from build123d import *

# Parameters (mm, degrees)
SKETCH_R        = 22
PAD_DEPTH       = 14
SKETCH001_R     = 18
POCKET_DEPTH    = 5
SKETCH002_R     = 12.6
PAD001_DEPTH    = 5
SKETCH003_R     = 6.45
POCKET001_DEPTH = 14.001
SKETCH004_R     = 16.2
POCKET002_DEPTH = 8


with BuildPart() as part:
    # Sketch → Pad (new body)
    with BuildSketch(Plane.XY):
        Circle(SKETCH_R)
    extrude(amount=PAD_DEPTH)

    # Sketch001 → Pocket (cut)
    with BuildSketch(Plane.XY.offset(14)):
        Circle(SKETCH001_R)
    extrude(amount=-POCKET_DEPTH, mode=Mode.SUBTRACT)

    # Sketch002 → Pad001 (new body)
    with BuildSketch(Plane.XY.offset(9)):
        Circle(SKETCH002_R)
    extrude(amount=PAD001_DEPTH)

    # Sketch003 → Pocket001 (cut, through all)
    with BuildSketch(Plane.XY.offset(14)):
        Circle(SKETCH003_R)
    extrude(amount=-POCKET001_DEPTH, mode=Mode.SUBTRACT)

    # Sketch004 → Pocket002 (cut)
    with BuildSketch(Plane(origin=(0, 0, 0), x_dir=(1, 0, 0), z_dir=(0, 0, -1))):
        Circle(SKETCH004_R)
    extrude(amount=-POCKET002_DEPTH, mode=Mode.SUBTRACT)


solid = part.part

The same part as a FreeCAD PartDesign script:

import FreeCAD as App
import Part
import Sketcher

V = App.Vector

doc = App.newDocument("Part")
body = doc.addObject("PartDesign::Body", "Body")

sketch1 = body.newObject("Sketcher::SketchObject", "Sketch")
sketch1.AttachmentSupport = (doc.getObject("XY_Plane"), [""])
sketch1.MapMode = "FlatFace"
sketch1.addGeometry(Part.Circle(V(0, 0, 0), V(0, 0, 1), 22), False)
sketch1.addConstraint([
    Sketcher.Constraint("Coincident", 0, 3, -1, 1),
    Sketcher.Constraint("Diameter", 0, 44.0),
])
pad1 = body.newObject("PartDesign::Pad", "Pad")
pad1.Profile = sketch1
pad1.Length = 14

sketch2 = body.newObject("Sketcher::SketchObject", "Sketch001")
sketch2.AttachmentSupport = (doc.getObject("XY_Plane"), [""])
sketch2.MapMode = "FlatFace"
sketch2.AttachmentOffset = App.Placement(V(0, 0, 14), App.Rotation())
sketch2.addGeometry(Part.Circle(V(0, 0, 0), V(0, 0, 1), 18), False)
sketch2.addConstraint([
    Sketcher.Constraint("Coincident", 0, 3, -1, 1),
    Sketcher.Constraint("Diameter", 0, 36.0),
])
pocket1 = body.newObject("PartDesign::Pocket", "Pocket")
pocket1.Profile = sketch2
pocket1.Length = 5

sketch3 = body.newObject("Sketcher::SketchObject", "Sketch002")
sketch3.AttachmentSupport = (doc.getObject("XY_Plane"), [""])
sketch3.MapMode = "FlatFace"
sketch3.AttachmentOffset = App.Placement(V(0, 0, 9), App.Rotation())
sketch3.addGeometry(Part.Circle(V(0, 0, 0), V(0, 0, 1), 13), False)
sketch3.addConstraint([
    Sketcher.Constraint("Coincident", 0, 3, -1, 1),
    Sketcher.Constraint("Diameter", 0, 25.2),
])
pad2 = body.newObject("PartDesign::Pad", "Pad001")
pad2.Profile = sketch3
pad2.Length = 5

sketch4 = body.newObject("Sketcher::SketchObject", "Sketch003")
sketch4.AttachmentSupport = (doc.getObject("XY_Plane"), [""])
sketch4.MapMode = "FlatFace"
sketch4.AttachmentOffset = App.Placement(V(0, 0, 14), App.Rotation())
sketch4.addGeometry(Part.Circle(V(0, 0, 0), V(0, 0, 1), 6), False)
sketch4.addConstraint([
    Sketcher.Constraint("Coincident", 0, 3, -1, 1),
    Sketcher.Constraint("Diameter", 0, 12.9),
])
pocket2 = body.newObject("PartDesign::Pocket", "Pocket001")
pocket2.Profile = sketch4
pocket2.Type = "ThroughAll"

sketch5 = body.newObject("Sketcher::SketchObject", "Sketch004")
sketch5.AttachmentSupport = (doc.getObject("XY_Plane"), [""])
sketch5.MapMode = "FlatFace"
sketch5.addGeometry(Part.Circle(V(0, 0, 0), V(0, 0, 1), 16), False)
sketch5.addConstraint([
    Sketcher.Constraint("Coincident", 0, 3, -1, 1),
    Sketcher.Constraint("Diameter", 0, 32.4),
])
pocket3 = body.newObject("PartDesign::Pocket", "Pocket002")
pocket3.Profile = sketch5
pocket3.Length = 8
pocket3.Reversed = True

doc.recompute()
